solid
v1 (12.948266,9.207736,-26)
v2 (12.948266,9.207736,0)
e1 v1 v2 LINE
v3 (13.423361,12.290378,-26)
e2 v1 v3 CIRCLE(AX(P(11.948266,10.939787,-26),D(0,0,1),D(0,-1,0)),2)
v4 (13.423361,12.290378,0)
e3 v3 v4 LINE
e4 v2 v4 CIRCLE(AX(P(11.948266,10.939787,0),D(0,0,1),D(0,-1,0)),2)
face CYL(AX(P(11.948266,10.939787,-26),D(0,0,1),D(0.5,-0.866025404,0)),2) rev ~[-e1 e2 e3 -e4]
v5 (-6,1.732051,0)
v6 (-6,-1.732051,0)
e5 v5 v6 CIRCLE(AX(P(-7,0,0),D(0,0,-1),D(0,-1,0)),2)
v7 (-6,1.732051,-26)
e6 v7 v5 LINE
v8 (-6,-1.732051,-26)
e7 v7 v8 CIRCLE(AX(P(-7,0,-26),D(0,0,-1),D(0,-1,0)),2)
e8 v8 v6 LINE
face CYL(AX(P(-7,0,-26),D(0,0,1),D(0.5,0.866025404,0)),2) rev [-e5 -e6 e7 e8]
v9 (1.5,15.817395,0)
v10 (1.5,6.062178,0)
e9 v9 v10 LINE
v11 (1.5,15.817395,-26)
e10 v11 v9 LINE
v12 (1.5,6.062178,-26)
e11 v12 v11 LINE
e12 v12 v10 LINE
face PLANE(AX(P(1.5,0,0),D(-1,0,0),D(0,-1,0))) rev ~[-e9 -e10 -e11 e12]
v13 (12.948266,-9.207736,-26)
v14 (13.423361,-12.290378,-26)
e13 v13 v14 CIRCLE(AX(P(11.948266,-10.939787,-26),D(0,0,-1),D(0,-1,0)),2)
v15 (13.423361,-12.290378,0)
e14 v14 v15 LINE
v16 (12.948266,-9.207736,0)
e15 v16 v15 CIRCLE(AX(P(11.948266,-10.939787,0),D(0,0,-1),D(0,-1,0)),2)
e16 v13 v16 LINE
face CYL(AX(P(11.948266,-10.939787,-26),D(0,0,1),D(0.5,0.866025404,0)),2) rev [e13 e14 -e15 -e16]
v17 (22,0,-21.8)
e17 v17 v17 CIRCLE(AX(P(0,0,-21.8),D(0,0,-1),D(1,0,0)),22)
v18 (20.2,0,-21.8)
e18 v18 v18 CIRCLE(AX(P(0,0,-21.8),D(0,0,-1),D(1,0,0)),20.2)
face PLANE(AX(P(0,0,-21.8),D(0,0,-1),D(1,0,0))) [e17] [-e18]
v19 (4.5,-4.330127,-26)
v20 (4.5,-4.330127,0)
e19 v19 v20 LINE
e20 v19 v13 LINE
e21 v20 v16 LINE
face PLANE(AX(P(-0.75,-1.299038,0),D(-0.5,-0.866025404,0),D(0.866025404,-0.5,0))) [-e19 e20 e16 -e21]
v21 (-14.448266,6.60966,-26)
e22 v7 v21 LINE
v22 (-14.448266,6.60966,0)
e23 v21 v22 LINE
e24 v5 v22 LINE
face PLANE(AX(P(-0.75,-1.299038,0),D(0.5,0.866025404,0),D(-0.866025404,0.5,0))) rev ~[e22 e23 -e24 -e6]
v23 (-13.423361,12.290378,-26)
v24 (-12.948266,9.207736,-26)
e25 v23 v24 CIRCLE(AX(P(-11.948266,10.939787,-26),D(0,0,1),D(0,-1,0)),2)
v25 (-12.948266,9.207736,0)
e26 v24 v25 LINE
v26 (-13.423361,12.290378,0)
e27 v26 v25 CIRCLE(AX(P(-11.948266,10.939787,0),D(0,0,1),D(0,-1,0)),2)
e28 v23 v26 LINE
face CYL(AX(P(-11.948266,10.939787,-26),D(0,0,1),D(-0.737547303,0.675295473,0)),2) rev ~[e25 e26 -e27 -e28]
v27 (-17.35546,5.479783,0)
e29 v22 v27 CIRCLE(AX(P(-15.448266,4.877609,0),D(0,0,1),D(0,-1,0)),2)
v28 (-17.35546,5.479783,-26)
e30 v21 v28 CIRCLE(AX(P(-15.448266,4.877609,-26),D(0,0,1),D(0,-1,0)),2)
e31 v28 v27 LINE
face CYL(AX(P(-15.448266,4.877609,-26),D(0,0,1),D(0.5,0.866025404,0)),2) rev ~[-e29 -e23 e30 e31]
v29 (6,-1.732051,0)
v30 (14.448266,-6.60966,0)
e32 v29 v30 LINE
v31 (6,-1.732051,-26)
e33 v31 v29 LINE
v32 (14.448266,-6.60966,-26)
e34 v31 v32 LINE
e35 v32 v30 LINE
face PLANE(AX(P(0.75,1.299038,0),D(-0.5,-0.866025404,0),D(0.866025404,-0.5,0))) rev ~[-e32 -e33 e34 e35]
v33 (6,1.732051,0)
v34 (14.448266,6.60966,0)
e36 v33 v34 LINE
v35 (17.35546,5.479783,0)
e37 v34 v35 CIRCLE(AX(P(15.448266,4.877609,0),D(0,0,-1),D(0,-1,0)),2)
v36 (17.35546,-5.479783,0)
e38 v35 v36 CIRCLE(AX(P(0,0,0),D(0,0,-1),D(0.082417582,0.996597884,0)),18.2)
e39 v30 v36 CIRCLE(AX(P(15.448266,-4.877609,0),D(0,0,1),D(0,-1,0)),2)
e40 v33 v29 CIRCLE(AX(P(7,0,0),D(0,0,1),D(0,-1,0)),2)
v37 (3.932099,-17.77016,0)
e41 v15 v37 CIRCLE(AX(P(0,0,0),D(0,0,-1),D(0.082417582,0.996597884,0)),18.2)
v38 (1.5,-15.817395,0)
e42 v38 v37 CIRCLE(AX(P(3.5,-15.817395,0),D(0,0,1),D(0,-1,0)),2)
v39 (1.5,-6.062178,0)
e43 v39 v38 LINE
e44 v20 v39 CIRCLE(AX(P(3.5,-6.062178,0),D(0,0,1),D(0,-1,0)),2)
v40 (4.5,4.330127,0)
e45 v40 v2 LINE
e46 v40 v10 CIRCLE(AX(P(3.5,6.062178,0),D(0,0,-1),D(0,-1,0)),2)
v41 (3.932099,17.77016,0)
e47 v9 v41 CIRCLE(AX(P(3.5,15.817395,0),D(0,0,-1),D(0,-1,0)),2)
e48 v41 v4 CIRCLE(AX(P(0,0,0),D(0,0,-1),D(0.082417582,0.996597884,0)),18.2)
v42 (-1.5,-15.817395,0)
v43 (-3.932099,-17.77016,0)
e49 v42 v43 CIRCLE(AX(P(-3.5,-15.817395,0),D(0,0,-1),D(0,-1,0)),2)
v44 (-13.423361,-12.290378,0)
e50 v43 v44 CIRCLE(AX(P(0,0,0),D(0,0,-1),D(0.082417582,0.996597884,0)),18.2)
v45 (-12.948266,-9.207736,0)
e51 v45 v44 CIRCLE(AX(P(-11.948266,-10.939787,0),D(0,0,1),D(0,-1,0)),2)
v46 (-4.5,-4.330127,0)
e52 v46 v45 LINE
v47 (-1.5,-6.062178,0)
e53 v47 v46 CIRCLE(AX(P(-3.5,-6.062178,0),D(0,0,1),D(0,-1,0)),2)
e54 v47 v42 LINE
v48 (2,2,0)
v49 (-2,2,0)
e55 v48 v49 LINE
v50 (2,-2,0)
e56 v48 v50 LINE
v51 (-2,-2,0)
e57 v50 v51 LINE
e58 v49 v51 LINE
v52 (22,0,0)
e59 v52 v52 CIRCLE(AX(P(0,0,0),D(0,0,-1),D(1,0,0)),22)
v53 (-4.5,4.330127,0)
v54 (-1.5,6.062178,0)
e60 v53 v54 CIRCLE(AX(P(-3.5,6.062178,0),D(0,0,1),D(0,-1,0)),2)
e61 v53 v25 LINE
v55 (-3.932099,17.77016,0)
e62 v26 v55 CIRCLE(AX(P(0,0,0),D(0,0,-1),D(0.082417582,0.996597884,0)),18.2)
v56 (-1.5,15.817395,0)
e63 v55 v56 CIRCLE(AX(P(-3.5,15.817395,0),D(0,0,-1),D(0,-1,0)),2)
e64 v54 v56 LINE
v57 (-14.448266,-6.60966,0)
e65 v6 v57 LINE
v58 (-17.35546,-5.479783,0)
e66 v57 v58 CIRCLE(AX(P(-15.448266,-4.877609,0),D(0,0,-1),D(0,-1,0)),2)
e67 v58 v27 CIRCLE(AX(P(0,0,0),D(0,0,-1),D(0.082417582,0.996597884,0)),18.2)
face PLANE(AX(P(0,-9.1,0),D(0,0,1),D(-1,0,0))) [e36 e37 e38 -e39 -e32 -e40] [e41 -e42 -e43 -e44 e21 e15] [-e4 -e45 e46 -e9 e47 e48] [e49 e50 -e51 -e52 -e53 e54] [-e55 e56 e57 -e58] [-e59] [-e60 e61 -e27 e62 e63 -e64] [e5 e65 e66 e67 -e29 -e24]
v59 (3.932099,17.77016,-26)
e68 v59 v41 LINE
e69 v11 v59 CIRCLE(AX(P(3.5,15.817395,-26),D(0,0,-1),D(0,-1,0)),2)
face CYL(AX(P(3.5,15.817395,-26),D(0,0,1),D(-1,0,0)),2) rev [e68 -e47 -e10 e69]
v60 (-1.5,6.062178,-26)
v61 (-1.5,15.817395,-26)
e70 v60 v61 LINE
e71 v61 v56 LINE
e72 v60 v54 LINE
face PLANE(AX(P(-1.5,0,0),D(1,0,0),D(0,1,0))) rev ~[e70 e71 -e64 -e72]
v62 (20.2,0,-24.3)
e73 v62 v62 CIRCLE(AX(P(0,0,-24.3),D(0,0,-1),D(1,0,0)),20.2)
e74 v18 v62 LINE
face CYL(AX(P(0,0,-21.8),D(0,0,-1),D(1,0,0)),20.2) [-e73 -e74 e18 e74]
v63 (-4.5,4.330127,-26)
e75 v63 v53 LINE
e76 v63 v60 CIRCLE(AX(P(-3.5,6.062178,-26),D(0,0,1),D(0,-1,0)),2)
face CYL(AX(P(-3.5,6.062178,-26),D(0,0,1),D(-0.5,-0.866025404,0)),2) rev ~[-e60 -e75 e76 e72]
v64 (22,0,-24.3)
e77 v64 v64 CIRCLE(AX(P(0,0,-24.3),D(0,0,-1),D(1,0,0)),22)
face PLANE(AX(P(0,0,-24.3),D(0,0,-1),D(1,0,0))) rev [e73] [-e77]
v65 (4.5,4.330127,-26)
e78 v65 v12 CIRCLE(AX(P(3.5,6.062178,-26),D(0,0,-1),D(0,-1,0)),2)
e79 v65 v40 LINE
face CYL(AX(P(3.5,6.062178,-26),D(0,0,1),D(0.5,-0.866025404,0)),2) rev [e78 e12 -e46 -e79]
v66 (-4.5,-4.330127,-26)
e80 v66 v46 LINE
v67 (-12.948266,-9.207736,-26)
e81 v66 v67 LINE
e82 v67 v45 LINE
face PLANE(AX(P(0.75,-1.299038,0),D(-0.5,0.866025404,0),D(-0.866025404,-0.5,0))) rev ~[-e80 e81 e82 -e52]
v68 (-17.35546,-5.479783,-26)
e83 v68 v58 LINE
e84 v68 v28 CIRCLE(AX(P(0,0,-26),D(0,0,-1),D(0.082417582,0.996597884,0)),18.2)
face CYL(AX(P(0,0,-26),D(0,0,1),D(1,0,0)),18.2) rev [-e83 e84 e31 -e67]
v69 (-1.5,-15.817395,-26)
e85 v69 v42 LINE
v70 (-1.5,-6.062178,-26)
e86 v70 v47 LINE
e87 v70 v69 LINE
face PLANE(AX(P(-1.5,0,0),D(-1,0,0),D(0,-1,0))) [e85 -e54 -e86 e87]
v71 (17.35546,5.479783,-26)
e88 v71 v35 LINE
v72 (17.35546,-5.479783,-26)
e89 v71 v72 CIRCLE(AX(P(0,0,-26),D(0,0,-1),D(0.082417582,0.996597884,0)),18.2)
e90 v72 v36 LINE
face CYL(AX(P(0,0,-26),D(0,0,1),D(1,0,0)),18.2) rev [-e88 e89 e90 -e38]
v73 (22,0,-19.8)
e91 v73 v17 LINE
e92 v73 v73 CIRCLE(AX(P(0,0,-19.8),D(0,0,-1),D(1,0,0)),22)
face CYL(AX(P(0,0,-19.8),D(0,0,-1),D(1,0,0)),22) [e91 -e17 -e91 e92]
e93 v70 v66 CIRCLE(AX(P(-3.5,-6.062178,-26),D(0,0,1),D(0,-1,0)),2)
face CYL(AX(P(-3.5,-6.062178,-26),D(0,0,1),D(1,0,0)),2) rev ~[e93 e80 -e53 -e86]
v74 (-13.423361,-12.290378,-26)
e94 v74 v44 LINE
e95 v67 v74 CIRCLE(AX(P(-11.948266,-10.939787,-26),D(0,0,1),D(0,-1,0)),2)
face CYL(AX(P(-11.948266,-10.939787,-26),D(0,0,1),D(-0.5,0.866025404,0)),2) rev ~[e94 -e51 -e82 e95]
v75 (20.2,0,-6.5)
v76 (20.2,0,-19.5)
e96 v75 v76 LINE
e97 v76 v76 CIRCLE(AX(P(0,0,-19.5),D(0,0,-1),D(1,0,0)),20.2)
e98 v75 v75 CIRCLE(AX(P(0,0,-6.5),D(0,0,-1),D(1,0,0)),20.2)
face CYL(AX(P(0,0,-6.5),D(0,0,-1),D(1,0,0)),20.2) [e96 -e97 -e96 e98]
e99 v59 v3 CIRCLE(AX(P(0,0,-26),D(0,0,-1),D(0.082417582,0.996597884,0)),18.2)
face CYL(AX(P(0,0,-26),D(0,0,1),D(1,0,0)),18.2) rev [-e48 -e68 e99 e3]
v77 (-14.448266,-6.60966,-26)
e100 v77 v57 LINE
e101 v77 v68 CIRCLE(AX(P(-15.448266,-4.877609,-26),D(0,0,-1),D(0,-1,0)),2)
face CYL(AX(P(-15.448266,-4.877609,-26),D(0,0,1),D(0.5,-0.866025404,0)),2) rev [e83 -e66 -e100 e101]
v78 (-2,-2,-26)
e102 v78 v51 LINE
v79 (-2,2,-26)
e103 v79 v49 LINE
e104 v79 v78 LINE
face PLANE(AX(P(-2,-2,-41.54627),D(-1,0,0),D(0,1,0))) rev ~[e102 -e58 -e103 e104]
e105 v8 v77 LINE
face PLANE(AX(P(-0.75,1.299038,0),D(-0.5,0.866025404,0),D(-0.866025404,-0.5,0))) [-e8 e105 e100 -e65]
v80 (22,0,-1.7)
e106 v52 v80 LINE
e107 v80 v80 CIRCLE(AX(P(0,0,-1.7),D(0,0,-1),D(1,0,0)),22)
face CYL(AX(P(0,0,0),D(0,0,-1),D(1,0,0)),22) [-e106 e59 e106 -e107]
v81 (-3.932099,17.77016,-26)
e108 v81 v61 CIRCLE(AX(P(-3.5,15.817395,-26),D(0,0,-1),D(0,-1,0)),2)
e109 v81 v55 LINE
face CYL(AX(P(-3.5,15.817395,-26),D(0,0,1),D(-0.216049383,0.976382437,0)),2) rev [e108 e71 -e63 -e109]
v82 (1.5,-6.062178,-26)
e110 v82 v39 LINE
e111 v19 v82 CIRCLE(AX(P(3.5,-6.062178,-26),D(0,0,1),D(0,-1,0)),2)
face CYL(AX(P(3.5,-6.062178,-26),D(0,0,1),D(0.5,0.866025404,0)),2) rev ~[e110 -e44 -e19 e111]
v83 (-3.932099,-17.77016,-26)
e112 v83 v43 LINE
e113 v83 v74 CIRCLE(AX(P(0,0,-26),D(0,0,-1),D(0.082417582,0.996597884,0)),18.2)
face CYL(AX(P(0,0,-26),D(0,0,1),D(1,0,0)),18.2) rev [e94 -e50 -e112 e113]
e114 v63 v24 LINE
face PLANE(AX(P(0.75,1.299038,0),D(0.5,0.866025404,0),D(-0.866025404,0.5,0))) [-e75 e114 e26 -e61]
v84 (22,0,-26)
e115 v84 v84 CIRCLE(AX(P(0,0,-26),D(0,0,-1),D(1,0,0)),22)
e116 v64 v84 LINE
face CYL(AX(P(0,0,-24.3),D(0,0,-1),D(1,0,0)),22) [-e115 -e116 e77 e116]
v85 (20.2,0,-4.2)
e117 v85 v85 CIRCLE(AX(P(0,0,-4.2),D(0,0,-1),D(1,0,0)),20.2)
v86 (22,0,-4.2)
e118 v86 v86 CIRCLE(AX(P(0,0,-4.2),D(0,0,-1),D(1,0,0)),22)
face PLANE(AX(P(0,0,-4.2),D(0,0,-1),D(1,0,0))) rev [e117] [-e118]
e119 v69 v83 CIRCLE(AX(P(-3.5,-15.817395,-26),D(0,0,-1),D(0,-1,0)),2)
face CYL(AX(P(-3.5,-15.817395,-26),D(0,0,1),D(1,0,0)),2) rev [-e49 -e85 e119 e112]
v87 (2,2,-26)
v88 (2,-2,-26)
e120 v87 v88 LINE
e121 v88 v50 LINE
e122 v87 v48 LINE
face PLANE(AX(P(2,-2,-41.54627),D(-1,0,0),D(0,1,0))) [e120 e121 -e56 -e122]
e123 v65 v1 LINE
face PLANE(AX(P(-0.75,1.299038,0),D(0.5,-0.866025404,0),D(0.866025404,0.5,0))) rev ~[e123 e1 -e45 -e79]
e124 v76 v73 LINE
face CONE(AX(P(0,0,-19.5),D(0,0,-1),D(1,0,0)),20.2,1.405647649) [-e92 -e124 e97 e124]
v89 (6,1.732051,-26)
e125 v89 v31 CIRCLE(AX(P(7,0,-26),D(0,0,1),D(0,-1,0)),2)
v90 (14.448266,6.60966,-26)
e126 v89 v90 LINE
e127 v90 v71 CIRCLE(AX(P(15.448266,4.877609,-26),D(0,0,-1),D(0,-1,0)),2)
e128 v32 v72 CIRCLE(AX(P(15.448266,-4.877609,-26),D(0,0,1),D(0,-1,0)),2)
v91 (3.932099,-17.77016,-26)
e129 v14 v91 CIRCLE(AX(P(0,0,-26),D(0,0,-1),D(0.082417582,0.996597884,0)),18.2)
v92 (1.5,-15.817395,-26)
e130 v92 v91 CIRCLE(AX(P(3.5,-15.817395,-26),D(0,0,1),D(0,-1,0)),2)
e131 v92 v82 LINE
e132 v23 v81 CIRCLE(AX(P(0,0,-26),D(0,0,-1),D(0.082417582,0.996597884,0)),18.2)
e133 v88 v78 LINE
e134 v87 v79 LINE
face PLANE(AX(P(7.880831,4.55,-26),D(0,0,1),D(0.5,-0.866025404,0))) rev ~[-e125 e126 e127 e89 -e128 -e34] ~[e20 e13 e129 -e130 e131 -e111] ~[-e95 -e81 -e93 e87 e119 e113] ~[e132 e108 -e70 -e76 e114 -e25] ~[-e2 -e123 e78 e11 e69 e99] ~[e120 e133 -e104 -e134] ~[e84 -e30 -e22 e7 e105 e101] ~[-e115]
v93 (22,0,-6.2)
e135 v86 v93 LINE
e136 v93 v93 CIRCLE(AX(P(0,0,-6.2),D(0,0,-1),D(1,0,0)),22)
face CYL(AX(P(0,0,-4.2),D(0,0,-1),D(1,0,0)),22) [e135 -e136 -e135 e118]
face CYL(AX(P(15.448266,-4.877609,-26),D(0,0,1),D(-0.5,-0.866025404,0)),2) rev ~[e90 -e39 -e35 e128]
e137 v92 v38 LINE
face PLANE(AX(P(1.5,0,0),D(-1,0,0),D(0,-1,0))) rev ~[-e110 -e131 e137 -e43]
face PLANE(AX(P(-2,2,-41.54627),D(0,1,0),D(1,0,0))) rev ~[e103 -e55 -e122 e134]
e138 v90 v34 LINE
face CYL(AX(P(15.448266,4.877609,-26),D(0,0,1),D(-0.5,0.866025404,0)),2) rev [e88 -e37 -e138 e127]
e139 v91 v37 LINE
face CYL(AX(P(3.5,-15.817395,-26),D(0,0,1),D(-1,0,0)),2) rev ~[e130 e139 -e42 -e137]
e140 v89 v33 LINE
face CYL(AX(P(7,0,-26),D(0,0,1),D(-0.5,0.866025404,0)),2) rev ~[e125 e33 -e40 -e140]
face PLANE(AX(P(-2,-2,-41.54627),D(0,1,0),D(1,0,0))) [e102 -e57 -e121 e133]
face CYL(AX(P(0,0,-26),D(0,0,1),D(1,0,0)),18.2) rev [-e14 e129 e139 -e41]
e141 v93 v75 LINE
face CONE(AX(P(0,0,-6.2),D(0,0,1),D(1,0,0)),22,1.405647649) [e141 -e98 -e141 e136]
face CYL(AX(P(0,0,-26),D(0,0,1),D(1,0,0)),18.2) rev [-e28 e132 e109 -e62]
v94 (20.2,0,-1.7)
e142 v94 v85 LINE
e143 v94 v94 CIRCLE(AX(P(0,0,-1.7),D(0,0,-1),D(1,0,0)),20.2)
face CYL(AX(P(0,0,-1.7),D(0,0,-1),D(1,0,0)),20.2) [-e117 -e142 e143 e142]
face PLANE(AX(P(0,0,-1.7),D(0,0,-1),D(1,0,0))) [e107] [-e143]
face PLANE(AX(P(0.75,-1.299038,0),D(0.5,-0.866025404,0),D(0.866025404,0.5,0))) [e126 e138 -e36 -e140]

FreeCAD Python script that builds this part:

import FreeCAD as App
import Part
import Sketcher

V = App.Vector


def edges_at(feature, points):
    """Names of the edges that pass closest to the given points."""
    edges = feature.Shape.Edges
    near = lambda p: min(range(len(edges)), key=lambda i: edges[i].distToShape(Part.Vertex(*p))[0])
    return sorted({f"Edge{near(p) + 1}" for p in points})


def add_polygon(sketch, points):
    """Adds a closed chain of lines whose ends are joined by coincident constraints."""
    first, n = sketch.GeometryCount, len(points)
    for a, b in zip(points, points[1:] + points[:1]):
        sketch.addGeometry(Part.LineSegment(App.Vector(*a, 0), App.Vector(*b, 0)), False)
    for i in range(n):
        sketch.addConstraint(Sketcher.Constraint("Coincident", first + i, 2, first + (i + 1) % n, 1))

doc = App.newDocument("Part")
params = doc.addObject("Spreadsheet::Sheet", "Params")
for row, (alias, value) in enumerate([
    ("sketch1_height", "26 mm"),
    ("sketch1_height2", "2 mm"),
    ("sketch1_height3", "13 mm"),
    ("sketch1_width", "3.8 mm"),
    ("sketch1_width2", "1.8 mm"),
    ("revolution_angle", "360 deg"),
    ("sketch2_width", "3 mm"),
    ("sketch2_height", "18.2 mm"),
    ("pad1_length", "26 mm"),
    ("sketch3_width", "4 mm"),
    ("fillet_radius", "2 mm"),
], start=1):
    params.set(f"A{row}", alias)
    params.set(f"B{row}", "=" + value)
    params.setAlias(f"B{row}", alias)

body = doc.addObject("PartDesign::Body", "Body")

# Sketch on YZ plane
sketch1 = body.newObject("Sketcher::SketchObject", "Sketch")
sketch1.AttachmentSupport = (doc.getObject("YZ_Plane"), [""])
sketch1.MapMode = "FlatFace"
add_polygon(sketch1, [(22, -1.7), (22, 0), (18.2, 0), (18.2, -26), (22, -26), (22, -24.3), (20.2, -24.3), (20.2, -21.8), (22, -21.8), (22, -19.8), (20.2, -19.5), (20.2, -6.5), (22, -6.2), (22, -4.2), (20.2, -4.2), (20.2, -1.7)])  # lines 0-15
sketch1.addConstraint(Sketcher.Constraint("Vertical", 0))
sketch1.addConstraint(Sketcher.Constraint("Horizontal", 1))
sketch1.addConstraint(Sketcher.Constraint("Vertical", 2))
sketch1.addConstraint(Sketcher.Constraint("Horizontal", 3))
sketch1.addConstraint(Sketcher.Constraint("Vertical", 4))
sketch1.addConstraint(Sketcher.Constraint("Horizontal", 5))
sketch1.addConstraint(Sketcher.Constraint("Vertical", 6))
sketch1.addConstraint(Sketcher.Constraint("Horizontal", 7))
sketch1.addConstraint(Sketcher.Constraint("Vertical", 8))
sketch1.addConstraint(Sketcher.Constraint("Vertical", 10))
sketch1.addConstraint(Sketcher.Constraint("Vertical", 12))
sketch1.addConstraint(Sketcher.Constraint("Horizontal", 13))
sketch1.addConstraint(Sketcher.Constraint("Vertical", 14))
sketch1.addConstraint(Sketcher.Constraint("Horizontal", 15))
sketch1.addConstraint(Sketcher.Constraint("PointOnObject", 0, 2, -1))
sketch1.addConstraint(Sketcher.Constraint("Vertical", 0, 2, 3, 2))
sketch1.addConstraint(Sketcher.Constraint("Vertical", 4, 2, 7, 2))
sketch1.addConstraint(Sketcher.Constraint("Vertical", 6, 2, 9, 2))
sketch1.addConstraint(Sketcher.Constraint("Vertical", 8, 2, 11, 2))
sketch1.addConstraint(Sketcher.Constraint("Vertical", 10, 2, 13, 2))
sketch1.addConstraint(Sketcher.Constraint("Equal", 0, 4))
sketch1.addConstraint(Sketcher.Constraint("Equal", 8, 12))
sketch1.addConstraint(Sketcher.Constraint("Equal", 6, 14))
sketch1.addConstraint(Sketcher.Constraint("Equal", 9, 11))
sketch1.addConstraint(Sketcher.Constraint("DistanceY", 2, 2, 2, 1, 26.0))
sketch1.addConstraint(Sketcher.Constraint("DistanceY", 8, 1, 8, 2, 2.0))
sketch1.addConstraint(Sketcher.Constraint("DistanceY", 10, 1, 10, 2, 13.0))
sketch1.addConstraint(Sketcher.Constraint("DistanceX", 1, 2, 1, 1, 3.8))
sketch1.addConstraint(Sketcher.Constraint("DistanceX", 5, 2, 5, 1, 1.8))
sketch1.addConstraint(Sketcher.Constraint("DistanceY", 0, 1, 0, 2, 1.7))
sketch1.addConstraint(Sketcher.Constraint("DistanceY", 6, 1, 6, 2, 2.5))
sketch1.addConstraint(Sketcher.Constraint("DistanceX", -1, 1, 0, 2, 22.0))
sketch1.setExpression("Constraints[40]", "Params.sketch1_height")
sketch1.setExpression("Constraints[41]", "Params.sketch1_height2")
sketch1.setExpression("Constraints[42]", "Params.sketch1_height3")
sketch1.setExpression("Constraints[43]", "Params.sketch1_width")
sketch1.setExpression("Constraints[44]", "Params.sketch1_width2")
revolution = body.newObject("PartDesign::Revolution", "Revolution")
revolution.Profile = sketch1
revolution.ReferenceAxis = (sketch1, ["V_Axis"])
revolution.setExpression("Angle", "Params.revolution_angle")

# Sketch on XY plane
sketch2 = body.newObject("Sketcher::SketchObject", "Sketch001")
sketch2.AttachmentSupport = (doc.getObject("XY_Plane"), [""])
sketch2.MapMode = "FlatFace"
add_polygon(sketch2, [(-1.5, 18.2), (-1.5, 0), (1.5, 0), (1.5, 18.2)])  # lines 0-3
sketch2.addConstraint(Sketcher.Constraint("Vertical", 0))
sketch2.addConstraint(Sketcher.Constraint("Horizontal", 1))
sketch2.addConstraint(Sketcher.Constraint("Vertical", 2))
sketch2.addConstraint(Sketcher.Constraint("Horizontal", 3))
sketch2.addConstraint(Sketcher.Constraint("Symmetric", 0, 2, 1, 2, -1, 1))
sketch2.addConstraint(Sketcher.Constraint("DistanceX", 1, 1, 1, 2, 3.0))
sketch2.addConstraint(Sketcher.Constraint("DistanceY", 0, 2, 0, 1, 18.2))
sketch2.setExpression("Constraints[9]", "Params.sketch2_width")
sketch2.setExpression("Constraints[10]", "Params.sketch2_height")
pad1 = body.newObject("PartDesign::Pad", "Pad")
pad1.Profile = sketch2
pad1.setExpression("Length", "Params.pad1_length")
pad1.Reversed = True
doc.recompute()

polarpattern = body.newObject("PartDesign::PolarPattern", "PolarPattern")
polarpattern.Originals = [pad1]
polarpattern.Axis = (doc.getObject("Z_Axis"), [""])
polarpattern.Angle = 360
polarpattern.Occurrences = 6
body.Tip = polarpattern

# Sketch on XY plane
sketch3 = body.newObject("Sketcher::SketchObject", "Sketch002")
sketch3.AttachmentSupport = (doc.getObject("XY_Plane"), [""])
sketch3.MapMode = "FlatFace"
add_polygon(sketch3, [(-2, 2), (-2, -2), (2, -2), (2, 2)])  # lines 0-3
sketch3.addConstraint(Sketcher.Constraint("Vertical", 0))
sketch3.addConstraint(Sketcher.Constraint("Horizontal", 1))
sketch3.addConstraint(Sketcher.Constraint("Vertical", 2))
sketch3.addConstraint(Sketcher.Constraint("Horizontal", 3))
sketch3.addConstraint(Sketcher.Constraint("Symmetric", 0, 2, 2, 2, -1, 1))
sketch3.addConstraint(Sketcher.Constraint("Equal", 3, 0))
sketch3.addConstraint(Sketcher.Constraint("DistanceX", 1, 1, 1, 2, 4.0))
sketch3.setExpression("Constraints[10]", "Params.sketch3_width")
pocket1 = body.newObject("PartDesign::Pocket", "Pocket")
pocket1.Profile = sketch3
pocket1.Type = "ThroughAll"
pocket1.Midplane = True
doc.recompute()

fillet = body.newObject("PartDesign::Fillet", "Fillet")
fillet.Base = (pocket1, edges_at(pocket1, [
    (3, 0, -13),
    (1.5, -2.598, -13),
    (-1.5, -2.598, -13),
    (-3, 0, -13),
    (16.458, 7.77, -13),
    (14.958, 10.368, -13),
    (16.458, -7.77, -13),
    (14.958, -10.368, -13),
    (-14.958, 10.368, -13),
    (-1.5, -18.138, -13),
    (1.5, -18.138, -13),
    (-16.458, -7.77, -13),
    (-14.958, -10.368, -13),
    (-16.458, 7.77, -13),
    (1.5, 18.138, -13),
    (-1.5, 18.138, -13),
    (-1.5, 2.598, -13),
    (1.5, 2.598, -13),
]))
fillet.setExpression("Radius", "Params.fillet_radius")

doc.recompute()
